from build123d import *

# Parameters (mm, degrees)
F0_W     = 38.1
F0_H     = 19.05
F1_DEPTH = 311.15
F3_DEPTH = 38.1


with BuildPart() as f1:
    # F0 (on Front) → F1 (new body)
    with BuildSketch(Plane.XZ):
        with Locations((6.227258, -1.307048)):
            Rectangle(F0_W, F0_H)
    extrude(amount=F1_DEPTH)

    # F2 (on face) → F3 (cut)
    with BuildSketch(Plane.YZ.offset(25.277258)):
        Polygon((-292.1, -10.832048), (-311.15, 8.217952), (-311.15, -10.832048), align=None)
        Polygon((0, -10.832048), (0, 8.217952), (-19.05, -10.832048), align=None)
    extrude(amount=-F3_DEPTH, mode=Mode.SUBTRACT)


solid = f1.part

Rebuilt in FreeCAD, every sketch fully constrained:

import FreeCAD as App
import Part
import Sketcher

V = App.Vector
Q = App.Units.Quantity


def add_polygon(sketch, points):
    """Adds a closed chain of lines whose ends are joined by coincident constraints."""
    first, n = sketch.GeometryCount, len(points)
    for a, b in zip(points, points[1:] + points[:1]):
        sketch.addGeometry(Part.LineSegment(App.Vector(*a, 0), App.Vector(*b, 0)), False)
    for i in range(n):
        sketch.addConstraint(Sketcher.Constraint("Coincident", first + i, 2, first + (i + 1) % n, 1))

doc = App.newDocument("Part")
body = doc.addObject("PartDesign::Body", "Body")

# Sketch on XZ plane
sketch1 = body.newObject("Sketcher::SketchObject", "Sketch")
sketch1.AttachmentSupport = (doc.getObject("XZ_Plane"), [""])
sketch1.MapMode = "FlatFace"
add_polygon(sketch1, [(-12.822742, 8.217952), (-12.822742, -10.832048), (25.277258, -10.832048), (25.277258, 8.217952)])  # lines 0-3
sketch1.addConstraint([
    Sketcher.Constraint("Vertical", 0),
    Sketcher.Constraint("Horizontal", 1),
    Sketcher.Constraint("Vertical", 2),
    Sketcher.Constraint("Horizontal", 3),
    Sketcher.Constraint("DistanceX", 1, 1, 1, 2, Q("1.5 in")),
    Sketcher.Constraint("DistanceY", 0, 2, 0, 1, Q("0.75 in")),
    Sketcher.Constraint("DistanceX", -1, 1, 1, 2, Q("25.277258 mm")),
    Sketcher.Constraint("DistanceY", 0, 2, -1, 1, Q("10.832048 mm")),
])
pad1 = body.newObject("PartDesign::Pad", "Pad")
pad1.Profile = sketch1
pad1.Length = Q("12.25 in")

# Sketch on YZ plane
sketch2 = body.newObject("Sketcher::SketchObject", "Sketch001")
sketch2.AttachmentSupport = (doc.getObject("YZ_Plane"), [""])
sketch2.MapMode = "FlatFace"
sketch2.AttachmentOffset = App.Placement(V(0, 0, 25.277258), App.Rotation())
add_polygon(sketch2, [(-292.1, -10.832048), (-311.15, 8.217952), (-311.15, -10.832048)])  # lines 0-2
add_polygon(sketch2, [(0, -10.832048), (0, 8.217952), (-19.05, -10.832048)])  # lines 3-5
sketch2.addConstraint([
    Sketcher.Constraint("Vertical", 1),
    Sketcher.Constraint("Horizontal", 2),
    Sketcher.Constraint("Vertical", 3),
    Sketcher.Constraint("Horizontal", 5),
    Sketcher.Constraint("PointOnObject", 3, 2, -2),
    Sketcher.Constraint("Perpendicular", 0, 4),
    Sketcher.Constraint("Horizontal", 0, 2, 3, 2),
    Sketcher.Constraint("Horizontal", 2, 2, 4, 2),
    Sketcher.Constraint("Equal", 2, 5),
    Sketcher.Constraint("DistanceX", 2, 1, 2, 2, Q("0.75 in")),
    Sketcher.Constraint("DistanceX", 2, 2, -1, 1, Q("11.5 in")),
    Sketcher.Constraint("DistanceY", -1, 1, 0, 2, Q("8.217952 mm")),
])
pocket1 = body.newObject("PartDesign::Pocket", "Pocket")
pocket1.Profile = sketch2
pocket1.Length = Q("1.5 in")

doc.recompute()
